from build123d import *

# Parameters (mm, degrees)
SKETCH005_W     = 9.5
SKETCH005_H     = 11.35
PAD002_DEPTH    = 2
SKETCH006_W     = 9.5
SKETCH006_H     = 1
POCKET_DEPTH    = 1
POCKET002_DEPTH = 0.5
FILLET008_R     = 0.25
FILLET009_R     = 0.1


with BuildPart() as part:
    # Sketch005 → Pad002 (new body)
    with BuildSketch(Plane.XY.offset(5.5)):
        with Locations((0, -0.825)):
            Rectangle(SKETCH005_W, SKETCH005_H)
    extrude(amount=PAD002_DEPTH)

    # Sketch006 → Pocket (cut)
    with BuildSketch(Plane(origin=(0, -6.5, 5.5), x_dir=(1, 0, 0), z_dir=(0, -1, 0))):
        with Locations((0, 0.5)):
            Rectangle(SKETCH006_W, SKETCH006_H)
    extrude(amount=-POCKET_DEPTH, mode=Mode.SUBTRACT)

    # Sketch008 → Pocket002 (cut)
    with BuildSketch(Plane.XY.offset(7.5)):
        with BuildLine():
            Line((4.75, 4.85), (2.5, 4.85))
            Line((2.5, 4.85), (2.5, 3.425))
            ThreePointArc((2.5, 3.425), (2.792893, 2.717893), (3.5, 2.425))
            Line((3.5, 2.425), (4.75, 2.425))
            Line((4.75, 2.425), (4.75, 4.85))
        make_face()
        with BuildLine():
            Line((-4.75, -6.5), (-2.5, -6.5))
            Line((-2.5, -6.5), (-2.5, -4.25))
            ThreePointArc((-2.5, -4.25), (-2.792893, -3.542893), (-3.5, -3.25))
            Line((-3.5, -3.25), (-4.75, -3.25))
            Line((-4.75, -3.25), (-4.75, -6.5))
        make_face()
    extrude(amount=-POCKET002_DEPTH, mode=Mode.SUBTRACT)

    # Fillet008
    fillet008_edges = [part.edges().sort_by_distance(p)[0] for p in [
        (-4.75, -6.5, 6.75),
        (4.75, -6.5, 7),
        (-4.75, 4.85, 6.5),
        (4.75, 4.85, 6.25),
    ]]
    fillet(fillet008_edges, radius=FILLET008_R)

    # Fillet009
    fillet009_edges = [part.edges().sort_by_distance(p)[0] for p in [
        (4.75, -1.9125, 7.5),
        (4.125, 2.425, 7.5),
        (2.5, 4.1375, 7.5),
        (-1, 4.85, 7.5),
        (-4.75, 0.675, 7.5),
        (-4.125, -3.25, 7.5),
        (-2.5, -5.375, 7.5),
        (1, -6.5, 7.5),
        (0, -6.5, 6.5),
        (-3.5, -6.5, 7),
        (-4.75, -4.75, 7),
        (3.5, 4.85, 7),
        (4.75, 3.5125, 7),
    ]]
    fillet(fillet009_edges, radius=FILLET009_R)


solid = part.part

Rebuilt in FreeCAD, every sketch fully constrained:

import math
import FreeCAD as App
import Part
import Sketcher

V = App.Vector
Q = App.Units.Quantity


def edges_at(feature, points):
    """Names of the edges that pass closest to the given points."""
    edges = feature.Shape.Edges
    near = lambda p: min(range(len(edges)), key=lambda i: edges[i].distToShape(Part.Vertex(*p))[0])
    return sorted({f"Edge{near(p) + 1}" for p in points})


def add_polygon(sketch, points):
    """Adds a closed chain of lines whose ends are joined by coincident constraints."""
    first, n = sketch.GeometryCount, len(points)
    for a, b in zip(points, points[1:] + points[:1]):
        sketch.addGeometry(Part.LineSegment(App.Vector(*a, 0), App.Vector(*b, 0)), False)
    for i in range(n):
        sketch.addConstraint(Sketcher.Constraint("Coincident", first + i, 2, first + (i + 1) % n, 1))

doc = App.newDocument("Part")
body = doc.addObject("PartDesign::Body", "Body")

# Sketch on XY plane
sketch1 = doc.addObject("Sketcher::SketchObject", "Sketch")
body.addObject(sketch1)
sketch1.AttachmentSupport = (doc.XY_Plane, [""])
sketch1.MapMode = "FlatFace"
sketch1.AttachmentOffset = App.Placement(V(0, 0, 5.5), App.Rotation())
add_polygon(sketch1, [(-5, 5), (-5, -6), (5, -6), (5, 5)])  # lines 0-3
sketch1.addConstraint([
    Sketcher.Constraint("Vertical", 0),
    Sketcher.Constraint("Horizontal", 1),
    Sketcher.Constraint("Vertical", 2),
    Sketcher.Constraint("Horizontal", 3),
    Sketcher.Constraint("DistanceX", 1, 1, 1, 2, Q("9.5 mm")),
    Sketcher.Constraint("DistanceY", 0, 2, 0, 1, Q("11.35 mm")),
    Sketcher.Constraint("DistanceY", 0, 2, -1, 1, Q("6.5 mm")),
    Sketcher.Constraint("DistanceX", 0, 2, -1, 1, Q("4.75 mm")),
])
pad1 = doc.addObject("PartDesign::Pad", "Pad")
body.addObject(pad1)
pad1.Profile = sketch1
pad1.Length = 2

# Sketch on XZ plane
sketch2 = doc.addObject("Sketcher::SketchObject", "Sketch001")
body.addObject(sketch2)
sketch2.AttachmentSupport = (doc.XZ_Plane, [""])
sketch2.MapMode = "FlatFace"
sketch2.AttachmentOffset = App.Placement(V(0, 0, 6.5), App.Rotation())
add_polygon(sketch2, [(-4.8, 6.5), (-4.8, 5.5), (4.8, 5.5), (4.8, 6.5)])  # lines 0-3
sketch2.addConstraint([
    Sketcher.Constraint("Vertical", 0),
    Sketcher.Constraint("Horizontal", 1),
    Sketcher.Constraint("Vertical", 2),
    Sketcher.Constraint("Horizontal", 3),
    Sketcher.Constraint("DistanceY", 0, 2, 0, 1, Q("1 mm")),
    Sketcher.Constraint("DistanceX", 1, 1, 1, 2, Q("9.5 mm")),
    Sketcher.Constraint("DistanceY", -1, 1, 0, 2, Q("5.5 mm")),
    Sketcher.Constraint("DistanceX", 0, 2, -1, 1, Q("4.75 mm")),
])
pocket1 = doc.addObject("PartDesign::Pocket", "Pocket")
body.addObject(pocket1)
pocket1.Profile = sketch2
pocket1.Length = 1

# Sketch on XY plane
sketch3 = doc.addObject("Sketcher::SketchObject", "Sketch002")
body.addObject(sketch3)
sketch3.AttachmentSupport = (doc.XY_Plane, [""])
sketch3.MapMode = "FlatFace"
sketch3.AttachmentOffset = App.Placement(V(0, 0, 7.5), App.Rotation())
sketch3.addGeometry([
    Part.LineSegment(V(4.8, 4.8, 0), V(2.5, 4.8, 0)),  # 0
    Part.LineSegment(V(2.5, 4.8, 0), V(2.5, 3.4, 0)),  # 1
    Part.ArcOfCircle(Part.Circle(V(3.5, 3.4, 0), V(0, 0, 1), 1), math.radians(180), math.radians(270)),  # 2
    Part.LineSegment(V(3.5, 2.4, 0), V(4.8, 2.4, 0)),  # 3
    Part.LineSegment(V(4.8, 2.4, 0), V(4.8, 4.8, 0)),  # 4
    Part.LineSegment(V(-4.8, -6.5, 0), V(-2.5, -6.5, 0)),  # 5
    Part.LineSegment(V(-2.5, -6.5, 0), V(-2.5, -4.2, 0)),  # 6
    Part.ArcOfCircle(Part.Circle(V(-3.5, -4.2, 0), V(0, 0, 1), 1), math.radians(0), math.radians(90)),  # 7
    Part.LineSegment(V(-3.5, -3.2, 0), V(-4.8, -3.2, 0)),  # 8
    Part.LineSegment(V(-4.8, -3.2, 0), V(-4.8, -6.5, 0)),  # 9
], False)
sketch3.addConstraint([
    Sketcher.Constraint("Coincident", 0, 2, 1, 1),
    Sketcher.Constraint("Tangent", 1, 2, 2, 1),
    Sketcher.Constraint("Tangent", 2, 2, 3, 1),
    Sketcher.Constraint("Coincident", 3, 2, 4, 1),
    Sketcher.Constraint("Coincident", 4, 2, 0, 1),
    Sketcher.Constraint("Coincident", 5, 2, 6, 1),
    Sketcher.Constraint("Tangent", 6, 2, 7, 1),
    Sketcher.Constraint("Tangent", 7, 2, 8, 1),
    Sketcher.Constraint("Coincident", 8, 2, 9, 1),
    Sketcher.Constraint("Coincident", 9, 2, 5, 1),
    Sketcher.Constraint("Horizontal", 0),
    Sketcher.Constraint("Vertical", 1),
    Sketcher.Constraint("Horizontal", 3),
    Sketcher.Constraint("Vertical", 4),
    Sketcher.Constraint("Horizontal", 5),
    Sketcher.Constraint("Vertical", 6),
    Sketcher.Constraint("Horizontal", 8),
    Sketcher.Constraint("Vertical", 9),
    Sketcher.Constraint("Equal", 2, 7),
    Sketcher.Constraint("Equal", 0, 5),
    Sketcher.Constraint("Equal", 5, 6),
    Sketcher.Constraint("Radius", 2, Q("0.999999 mm")),
    Sketcher.Constraint("DistanceX", 7, 3, 2, 3, Q("6.999999 mm")),
    Sketcher.Constraint("DistanceX", 0, 2, 0, 1, Q("2.25 mm")),
    Sketcher.Constraint("DistanceX", -1, 1, 2, 3, Q("3.499999 mm")),
    Sketcher.Constraint("DistanceY", 5, 2, -1, 1, Q("6.5 mm")),
    Sketcher.Constraint("DistanceY", 7, 3, 0, 2, Q("9.099999 mm")),
    Sketcher.Constraint("DistanceY", 1, 2, 1, 1, Q("1.425 mm")),
])
pocket2 = doc.addObject("PartDesign::Pocket", "Pocket001")
body.addObject(pocket2)
pocket2.Profile = sketch3
pocket2.Length = 0.5
doc.recompute()

fillet = doc.addObject("PartDesign::Fillet", "Fillet")
body.addObject(fillet)
fillet.Base = (pocket2, edges_at(pocket2, [
    (-4.75, -6.5, 6.75),
    (4.75, -6.5, 7),
    (-4.75, 4.85, 6.5),
    (4.75, 4.85, 6.25),
]))
fillet.Radius = 0.25
doc.recompute()

fillet2 = doc.addObject("PartDesign::Fillet", "Fillet001")
body.addObject(fillet2)
fillet2.Base = (fillet, edges_at(fillet, [
    (4.75, -1.913, 7.5),
    (4.125, 2.425, 7.5),
    (2.5, 4.138, 7.5),
    (-1, 4.85, 7.5),
    (-4.75, 0.675, 7.5),
    (-4.125, -3.25, 7.5),
    (-2.5, -5.375, 7.5),
    (1, -6.5, 7.5),
    (0, -6.5, 6.5),
    (-3.5, -6.5, 7),
    (-4.75, -4.75, 7),
    (3.5, 4.85, 7),
    (4.75, 3.513, 7),
]))
fillet2.Radius = 0.1

doc.recompute()
